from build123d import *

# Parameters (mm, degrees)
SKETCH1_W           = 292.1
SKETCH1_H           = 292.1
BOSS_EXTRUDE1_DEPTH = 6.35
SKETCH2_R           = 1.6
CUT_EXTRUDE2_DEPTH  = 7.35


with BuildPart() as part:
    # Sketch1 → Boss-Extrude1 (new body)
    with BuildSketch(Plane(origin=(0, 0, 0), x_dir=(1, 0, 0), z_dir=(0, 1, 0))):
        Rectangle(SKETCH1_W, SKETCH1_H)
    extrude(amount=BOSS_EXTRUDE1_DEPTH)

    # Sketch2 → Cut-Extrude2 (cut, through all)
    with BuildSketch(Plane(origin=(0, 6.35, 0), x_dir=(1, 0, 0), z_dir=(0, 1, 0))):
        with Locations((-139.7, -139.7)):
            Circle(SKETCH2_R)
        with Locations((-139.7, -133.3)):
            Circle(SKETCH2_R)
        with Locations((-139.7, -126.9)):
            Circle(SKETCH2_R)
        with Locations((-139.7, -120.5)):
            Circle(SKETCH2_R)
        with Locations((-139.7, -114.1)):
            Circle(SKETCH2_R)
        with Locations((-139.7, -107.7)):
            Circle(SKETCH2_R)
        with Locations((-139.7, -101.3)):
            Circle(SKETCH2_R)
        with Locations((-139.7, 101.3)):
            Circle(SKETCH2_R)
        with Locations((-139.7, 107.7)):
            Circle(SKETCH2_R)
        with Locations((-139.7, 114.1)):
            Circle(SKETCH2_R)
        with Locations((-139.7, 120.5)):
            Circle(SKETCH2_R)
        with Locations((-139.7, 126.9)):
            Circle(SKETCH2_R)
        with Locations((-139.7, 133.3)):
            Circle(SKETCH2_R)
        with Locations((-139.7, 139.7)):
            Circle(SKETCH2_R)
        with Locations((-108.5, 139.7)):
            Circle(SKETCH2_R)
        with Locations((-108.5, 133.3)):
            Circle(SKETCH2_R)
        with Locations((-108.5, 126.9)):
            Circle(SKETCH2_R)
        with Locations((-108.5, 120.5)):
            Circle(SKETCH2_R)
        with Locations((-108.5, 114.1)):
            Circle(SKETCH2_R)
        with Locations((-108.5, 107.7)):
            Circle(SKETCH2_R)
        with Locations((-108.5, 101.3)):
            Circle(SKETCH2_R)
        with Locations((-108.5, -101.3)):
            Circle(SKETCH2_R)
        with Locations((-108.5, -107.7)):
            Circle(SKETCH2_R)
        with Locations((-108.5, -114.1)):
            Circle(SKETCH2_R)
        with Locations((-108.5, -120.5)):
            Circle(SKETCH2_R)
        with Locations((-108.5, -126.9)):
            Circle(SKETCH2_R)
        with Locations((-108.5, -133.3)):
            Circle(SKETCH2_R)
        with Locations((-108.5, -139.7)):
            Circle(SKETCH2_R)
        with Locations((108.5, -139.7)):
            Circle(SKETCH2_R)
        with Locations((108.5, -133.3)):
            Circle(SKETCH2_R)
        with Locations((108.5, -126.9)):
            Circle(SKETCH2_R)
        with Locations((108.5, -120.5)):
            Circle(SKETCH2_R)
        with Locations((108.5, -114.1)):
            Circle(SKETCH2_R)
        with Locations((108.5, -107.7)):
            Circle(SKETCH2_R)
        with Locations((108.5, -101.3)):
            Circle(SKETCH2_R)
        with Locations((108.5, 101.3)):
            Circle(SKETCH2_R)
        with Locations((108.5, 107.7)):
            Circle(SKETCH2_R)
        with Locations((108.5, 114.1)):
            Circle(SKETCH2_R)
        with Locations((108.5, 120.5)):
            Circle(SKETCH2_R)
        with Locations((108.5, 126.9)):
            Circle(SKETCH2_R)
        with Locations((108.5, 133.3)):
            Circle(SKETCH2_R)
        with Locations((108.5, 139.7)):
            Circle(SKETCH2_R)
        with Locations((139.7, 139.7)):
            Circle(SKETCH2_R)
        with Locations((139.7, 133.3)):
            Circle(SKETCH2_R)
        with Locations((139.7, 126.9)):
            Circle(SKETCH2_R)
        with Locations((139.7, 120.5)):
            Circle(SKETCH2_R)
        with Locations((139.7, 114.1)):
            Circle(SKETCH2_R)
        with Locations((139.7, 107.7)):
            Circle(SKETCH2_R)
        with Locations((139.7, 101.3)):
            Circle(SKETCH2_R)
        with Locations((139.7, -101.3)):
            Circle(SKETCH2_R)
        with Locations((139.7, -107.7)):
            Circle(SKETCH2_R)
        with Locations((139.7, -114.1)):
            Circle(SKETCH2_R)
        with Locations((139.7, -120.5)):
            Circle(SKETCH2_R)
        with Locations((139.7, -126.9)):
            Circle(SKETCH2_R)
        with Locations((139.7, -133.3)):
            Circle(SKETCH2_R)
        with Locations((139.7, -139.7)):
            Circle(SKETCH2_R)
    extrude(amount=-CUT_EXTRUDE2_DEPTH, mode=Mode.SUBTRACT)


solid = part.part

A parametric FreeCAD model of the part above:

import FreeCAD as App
import Part
import Sketcher
Q = App.Units.Quantity


def add_polygon(sketch, points):
    """Adds a closed chain of lines whose ends are joined by coincident constraints."""
    first, n = sketch.GeometryCount, len(points)
    for a, b in zip(points, points[1:] + points[:1]):
        sketch.addGeometry(Part.LineSegment(App.Vector(*a, 0), App.Vector(*b, 0)), False)
    for i in range(n):
        sketch.addConstraint(Sketcher.Constraint("Coincident", first + i, 2, first + (i + 1) % n, 1))

doc = App.newDocument("Part")
params = doc.addObject("Spreadsheet::Sheet", "Params")
for row, (alias, value) in enumerate([
    ("sketch1_width", "11.5 in"),
    ("pad1_length", "0.25 in"),
], start=1):
    params.set(f"A{row}", alias)
    params.set(f"B{row}", "=" + value)
    params.setAlias(f"B{row}", alias)

body = doc.addObject("PartDesign::Body", "Body")

sketch1 = body.newObject("Sketcher::SketchObject", "Sketch")
sketch1.AttachmentSupport = (doc.getObject("XZ_Plane"), [""])
sketch1.MapMode = "FlatFace"
add_polygon(sketch1, [(-146, -146), (-146, 146), (146, 146), (146, -146)])
sketch1.addConstraint(Sketcher.Constraint("Vertical", 0))
sketch1.addConstraint(Sketcher.Constraint("Horizontal", 1))
sketch1.addConstraint(Sketcher.Constraint("Vertical", 2))
sketch1.addConstraint(Sketcher.Constraint("Horizontal", 3))
sketch1.addConstraint(Sketcher.Constraint("Symmetric", 0, 2, 2, 2, -1, 1))
sketch1.addConstraint(Sketcher.Constraint("Equal", 3, 0))
sketch1.addConstraint(Sketcher.Constraint("DistanceX", 1, 1, 1, 2, Q("11.5 in")))
sketch1.setExpression("Constraints[10]", "Params.sketch1_width")
pad1 = body.newObject("PartDesign::Pad", "Pad")
pad1.Profile = sketch1
pad1.setExpression("Length", "Params.pad1_length")
pad1.Reversed = True

sketch2 = body.newObject("Sketcher::SketchObject", "Sketch001")
sketch2.AttachmentSupport = (doc.getObject("XZ_Plane"), [""])
sketch2.MapMode = "FlatFace"
sketch2.AttachmentOffset = App.Placement(App.Vector(0, 0, -0.25 * 25.4), App.Rotation())
sketch2.addGeometry(Part.Circle(App.Vector(-139.7, 139.7, 0), App.Vector(0, 0, 1), 1.6), False)
sketch2.addGeometry(Part.Circle(App.Vector(-139.7, 133.3, 0), App.Vector(0, 0, 1), 1.6), False)
sketch2.addGeometry(Part.Circle(App.Vector(-139.7, 126.9, 0), App.Vector(0, 0, 1), 1.6), False)
sketch2.addGeometry(Part.Circle(App.Vector(-139.7, 120.5, 0), App.Vector(0, 0, 1), 1.6), False)
sketch2.addGeometry(Part.Circle(App.Vector(-139.7, 114.1, 0), App.Vector(0, 0, 1), 1.6), False)
sketch2.addGeometry(Part.Circle(App.Vector(-139.7, 107.7, 0), App.Vector(0, 0, 1), 1.6), False)
sketch2.addGeometry(Part.Circle(App.Vector(-139.7, 101.3, 0), App.Vector(0, 0, 1), 1.6), False)
sketch2.addGeometry(Part.Circle(App.Vector(-139.7, -101.3, 0), App.Vector(0, 0, 1), 1.6), False)
sketch2.addGeometry(Part.Circle(App.Vector(-139.7, -107.7, 0), App.Vector(0, 0, 1), 1.6), False)
sketch2.addGeometry(Part.Circle(App.Vector(-139.7, -114.1, 0), App.Vector(0, 0, 1), 1.6), False)
sketch2.addGeometry(Part.Circle(App.Vector(-139.7, -120.5, 0), App.Vector(0, 0, 1), 1.6), False)
sketch2.addGeometry(Part.Circle(App.Vector(-139.7, -126.9, 0), App.Vector(0, 0, 1), 1.6), False)
sketch2.addGeometry(Part.Circle(App.Vector(-139.7, -133.3, 0), App.Vector(0, 0, 1), 1.6), False)
sketch2.addGeometry(Part.Circle(App.Vector(-139.7, -139.7, 0), App.Vector(0, 0, 1), 1.6), False)
sketch2.addGeometry(Part.Circle(App.Vector(-108.5, -139.7, 0), App.Vector(0, 0, 1), 1.6), False)
sketch2.addGeometry(Part.Circle(App.Vector(-108.5, -133.3, 0), App.Vector(0, 0, 1), 1.6), False)
sketch2.addGeometry(Part.Circle(App.Vector(-108.5, -126.9, 0), App.Vector(0, 0, 1), 1.6), False)
sketch2.addGeometry(Part.Circle(App.Vector(-108.5, -120.5, 0), App.Vector(0, 0, 1), 1.6), False)
sketch2.addGeometry(Part.Circle(App.Vector(-108.5, -114.1, 0), App.Vector(0, 0, 1), 1.6), False)
sketch2.addGeometry(Part.Circle(App.Vector(-108.5, -107.7, 0), App.Vector(0, 0, 1), 1.6), False)
sketch2.addGeometry(Part.Circle(App.Vector(-108.5, -101.3, 0), App.Vector(0, 0, 1), 1.6), False)
sketch2.addGeometry(Part.Circle(App.Vector(-108.5, 101.3, 0), App.Vector(0, 0, 1), 1.6), False)
sketch2.addGeometry(Part.Circle(App.Vector(-108.5, 107.7, 0), App.Vector(0, 0, 1), 1.6), False)
sketch2.addGeometry(Part.Circle(App.Vector(-108.5, 114.1, 0), App.Vector(0, 0, 1), 1.6), False)
sketch2.addGeometry(Part.Circle(App.Vector(-108.5, 120.5, 0), App.Vector(0, 0, 1), 1.6), False)
sketch2.addGeometry(Part.Circle(App.Vector(-108.5, 126.9, 0), App.Vector(0, 0, 1), 1.6), False)
sketch2.addGeometry(Part.Circle(App.Vector(-108.5, 133.3, 0), App.Vector(0, 0, 1), 1.6), False)
sketch2.addGeometry(Part.Circle(App.Vector(-108.5, 139.7, 0), App.Vector(0, 0, 1), 1.6), False)
sketch2.addGeometry(Part.Circle(App.Vector(108.5, 139.7, 0), App.Vector(0, 0, 1), 1.6), False)
sketch2.addGeometry(Part.Circle(App.Vector(108.5, 133.3, 0), App.Vector(0, 0, 1), 1.6), False)
sketch2.addGeometry(Part.Circle(App.Vector(108.5, 126.9, 0), App.Vector(0, 0, 1), 1.6), False)
sketch2.addGeometry(Part.Circle(App.Vector(108.5, 120.5, 0), App.Vector(0, 0, 1), 1.6), False)
sketch2.addGeometry(Part.Circle(App.Vector(108.5, 114.1, 0), App.Vector(0, 0, 1), 1.6), False)
sketch2.addGeometry(Part.Circle(App.Vector(108.5, 107.7, 0), App.Vector(0, 0, 1), 1.6), False)
sketch2.addGeometry(Part.Circle(App.Vector(108.5, 101.3, 0), App.Vector(0, 0, 1), 1.6), False)
sketch2.addGeometry(Part.Circle(App.Vector(108.5, -101.3, 0), App.Vector(0, 0, 1), 1.6), False)
sketch2.addGeometry(Part.Circle(App.Vector(108.5, -107.7, 0), App.Vector(0, 0, 1), 1.6), False)
sketch2.addGeometry(Part.Circle(App.Vector(108.5, -114.1, 0), App.Vector(0, 0, 1), 1.6), False)
sketch2.addGeometry(Part.Circle(App.Vector(108.5, -120.5, 0), App.Vector(0, 0, 1), 1.6), False)
sketch2.addGeometry(Part.Circle(App.Vector(108.5, -126.9, 0), App.Vector(0, 0, 1), 1.6), False)
sketch2.addGeometry(Part.Circle(App.Vector(108.5, -133.3, 0), App.Vector(0, 0, 1), 1.6), False)
sketch2.addGeometry(Part.Circle(App.Vector(108.5, -139.7, 0), App.Vector(0, 0, 1), 1.6), False)
sketch2.addGeometry(Part.Circle(App.Vector(139.7, -139.7, 0), App.Vector(0, 0, 1), 1.6), False)
sketch2.addGeometry(Part.Circle(App.Vector(139.7, -133.3, 0), App.Vector(0, 0, 1), 1.6), False)
sketch2.addGeometry(Part.Circle(App.Vector(139.7, -126.9, 0), App.Vector(0, 0, 1), 1.6), False)
sketch2.addGeometry(Part.Circle(App.Vector(139.7, -120.5, 0), App.Vector(0, 0, 1), 1.6), False)
sketch2.addGeometry(Part.Circle(App.Vector(139.7, -114.1, 0), App.Vector(0, 0, 1), 1.6), False)
sketch2.addGeometry(Part.Circle(App.Vector(139.7, -107.7, 0), App.Vector(0, 0, 1), 1.6), False)
sketch2.addGeometry(Part.Circle(App.Vector(139.7, -101.3, 0), App.Vector(0, 0, 1), 1.6), False)
sketch2.addGeometry(Part.Circle(App.Vector(139.7, 101.3, 0), App.Vector(0, 0, 1), 1.6), False)
sketch2.addGeometry(Part.Circle(App.Vector(139.7, 107.7, 0), App.Vector(0, 0, 1), 1.6), False)
sketch2.addGeometry(Part.Circle(App.Vector(139.7, 114.1, 0), App.Vector(0, 0, 1), 1.6), False)
sketch2.addGeometry(Part.Circle(App.Vector(139.7, 120.5, 0), App.Vector(0, 0, 1), 1.6), False)
sketch2.addGeometry(Part.Circle(App.Vector(139.7, 126.9, 0), App.Vector(0, 0, 1), 1.6), False)
sketch2.addGeometry(Part.Circle(App.Vector(139.7, 133.3, 0), App.Vector(0, 0, 1), 1.6), False)
sketch2.addGeometry(Part.Circle(App.Vector(139.7, 139.7, 0), App.Vector(0, 0, 1), 1.6), False)
sketch2.addConstraint(Sketcher.Constraint("Equal", 0, 1))
sketch2.addConstraint(Sketcher.Constraint("Equal", 1, 2))
sketch2.addConstraint(Sketcher.Constraint("Equal", 2, 3))
sketch2.addConstraint(Sketcher.Constraint("Equal", 3, 4))
sketch2.addConstraint(Sketcher.Constraint("Equal", 4, 5))
sketch2.addConstraint(Sketcher.Constraint("Equal", 5, 6))
sketch2.addConstraint(Sketcher.Constraint("Equal", 6, 7))
sketch2.addConstraint(Sketcher.Constraint("Equal", 7, 8))
sketch2.addConstraint(Sketcher.Constraint("Equal", 8, 9))
sketch2.addConstraint(Sketcher.Constraint("Equal", 9, 10))
sketch2.addConstraint(Sketcher.Constraint("Equal", 10, 11))
sketch2.addConstraint(Sketcher.Constraint("Equal", 11, 12))
sketch2.addConstraint(Sketcher.Constraint("Equal", 12, 13))
sketch2.addConstraint(Sketcher.Constraint("Equal", 13, 14))
sketch2.addConstraint(Sketcher.Constraint("Equal", 14, 15))
sketch2.addConstraint(Sketcher.Constraint("Equal", 15, 16))
sketch2.addConstraint(Sketcher.Constraint("Equal", 16, 17))
sketch2.addConstraint(Sketcher.Constraint("Equal", 17, 18))
sketch2.addConstraint(Sketcher.Constraint("Equal", 18, 19))
sketch2.addConstraint(Sketcher.Constraint("Equal", 19, 20))
sketch2.addConstraint(Sketcher.Constraint("Equal", 20, 21))
sketch2.addConstraint(Sketcher.Constraint("Equal", 21, 22))
sketch2.addConstraint(Sketcher.Constraint("Equal", 22, 23))
sketch2.addConstraint(Sketcher.Constraint("Equal", 23, 24))
sketch2.addConstraint(Sketcher.Constraint("Equal", 24, 25))
sketch2.addConstraint(Sketcher.Constraint("Equal", 25, 26))
sketch2.addConstraint(Sketcher.Constraint("Equal", 26, 27))
sketch2.addConstraint(Sketcher.Constraint("Equal", 27, 28))
sketch2.addConstraint(Sketcher.Constraint("Equal", 28, 29))
sketch2.addConstraint(Sketcher.Constraint("Equal", 29, 30))
sketch2.addConstraint(Sketcher.Constraint("Equal", 30, 31))
sketch2.addConstraint(Sketcher.Constraint("Equal", 31, 32))
sketch2.addConstraint(Sketcher.Constraint("Equal", 32, 33))
sketch2.addConstraint(Sketcher.Constraint("Equal", 33, 34))
sketch2.addConstraint(Sketcher.Constraint("Equal", 34, 35))
sketch2.addConstraint(Sketcher.Constraint("Equal", 35, 36))
sketch2.addConstraint(Sketcher.Constraint("Equal", 36, 37))
sketch2.addConstraint(Sketcher.Constraint("Equal", 37, 38))
sketch2.addConstraint(Sketcher.Constraint("Equal", 38, 39))
sketch2.addConstraint(Sketcher.Constraint("Equal", 39, 40))
sketch2.addConstraint(Sketcher.Constraint("Equal", 40, 41))
sketch2.addConstraint(Sketcher.Constraint("Equal", 41, 42))
sketch2.addConstraint(Sketcher.Constraint("Equal", 42, 43))
sketch2.addConstraint(Sketcher.Constraint("Equal", 43, 44))
sketch2.addConstraint(Sketcher.Constraint("Equal", 44, 45))
sketch2.addConstraint(Sketcher.Constraint("Equal", 45, 46))
sketch2.addConstraint(Sketcher.Constraint("Equal", 46, 47))
sketch2.addConstraint(Sketcher.Constraint("Equal", 47, 48))
sketch2.addConstraint(Sketcher.Constraint("Equal", 48, 49))
sketch2.addConstraint(Sketcher.Constraint("Equal", 49, 50))
sketch2.addConstraint(Sketcher.Constraint("Equal", 50, 51))
sketch2.addConstraint(Sketcher.Constraint("Equal", 51, 52))
sketch2.addConstraint(Sketcher.Constraint("Equal", 52, 53))
sketch2.addConstraint(Sketcher.Constraint("Equal", 53, 54))
sketch2.addConstraint(Sketcher.Constraint("Equal", 54, 55))
sketch2.addConstraint(Sketcher.Constraint("Symmetric", 14, 3, 28, 3, -1, 1))
sketch2.addConstraint(Sketcher.Constraint("Symmetric", 15, 3, 29, 3, -1, 1))
sketch2.addConstraint(Sketcher.Constraint("Symmetric", 16, 3, 30, 3, -1, 1))
sketch2.addConstraint(Sketcher.Constraint("Symmetric", 17, 3, 31, 3, -1, 1))
sketch2.addConstraint(Sketcher.Constraint("Symmetric", 18, 3, 32, 3, -1, 1))
sketch2.addConstraint(Sketcher.Constraint("Symmetric", 19, 3, 33, 3, -1, 1))
sketch2.addConstraint(Sketcher.Constraint("Symmetric", 20, 3, 34, 3, -1, 1))
sketch2.addConstraint(Sketcher.Constraint("Symmetric", 21, 3, 35, 3, -1, 1))
sketch2.addConstraint(Sketcher.Constraint("Symmetric", 22, 3, 36, 3, -1, 1))
sketch2.addConstraint(Sketcher.Constraint("Symmetric", 23, 3, 37, 3, -1, 1))
sketch2.addConstraint(Sketcher.Constraint("Symmetric", 24, 3, 38, 3, -1, 1))
sketch2.addConstraint(Sketcher.Constraint("Symmetric", 25, 3, 39, 3, -1, 1))
sketch2.addConstraint(Sketcher.Constraint("Symmetric", 26, 3, 40, 3, -1, 1))
sketch2.addConstraint(Sketcher.Constraint("Symmetric", 27, 3, 41, 3, -1, 1))
sketch2.addConstraint(Sketcher.Constraint("Symmetric", 0, 3, 42, 3, -1, 1))
sketch2.addConstraint(Sketcher.Constraint("Symmetric", 1, 3, 43, 3, -1, 1))
sketch2.addConstraint(Sketcher.Constraint("Symmetric", 2, 3, 44, 3, -1, 1))
sketch2.addConstraint(Sketcher.Constraint("Symmetric", 3, 3, 45, 3, -1, 1))
sketch2.addConstraint(Sketcher.Constraint("Symmetric", 4, 3, 46, 3, -1, 1))
sketch2.addConstraint(Sketcher.Constraint("Symmetric", 5, 3, 47, 3, -1, 1))
sketch2.addConstraint(Sketcher.Constraint("Symmetric", 6, 3, 48, 3, -1, 1))
sketch2.addConstraint(Sketcher.Constraint("Symmetric", 7, 3, 49, 3, -1, 1))
sketch2.addConstraint(Sketcher.Constraint("Symmetric", 8, 3, 50, 3, -1, 1))
sketch2.addConstraint(Sketcher.Constraint("Symmetric", 9, 3, 51, 3, -1, 1))
sketch2.addConstraint(Sketcher.Constraint("Symmetric", 10, 3, 52, 3, -1, 1))
sketch2.addConstraint(Sketcher.Constraint("Symmetric", 11, 3, 53, 3, -1, 1))
sketch2.addConstraint(Sketcher.Constraint("Symmetric", 12, 3, 54, 3, -1, 1))
sketch2.addConstraint(Sketcher.Constraint("Symmetric", 13, 3, 55, 3, -1, 1))
sketch2.addConstraint(Sketcher.Constraint("Symmetric", 27, 3, 28, 3, -2))
sketch2.addConstraint(Sketcher.Constraint("Symmetric", 26, 3, 29, 3, -2))
sketch2.addConstraint(Sketcher.Constraint("Symmetric", 25, 3, 30, 3, -2))
sketch2.addConstraint(Sketcher.Constraint("Symmetric", 24, 3, 31, 3, -2))
sketch2.addConstraint(Sketcher.Constraint("Symmetric", 23, 3, 32, 3, -2))
sketch2.addConstraint(Sketcher.Constraint("Symmetric", 22, 3, 33, 3, -2))
sketch2.addConstraint(Sketcher.Constraint("Symmetric", 21, 3, 34, 3, -2))
sketch2.addConstraint(Sketcher.Constraint("Symmetric", 13, 3, 42, 3, -2))
sketch2.addConstraint(Sketcher.Constraint("Symmetric", 12, 3, 43, 3, -2))
sketch2.addConstraint(Sketcher.Constraint("Symmetric", 11, 3, 44, 3, -2))
sketch2.addConstraint(Sketcher.Constraint("Symmetric", 10, 3, 45, 3, -2))
sketch2.addConstraint(Sketcher.Constraint("Symmetric", 9, 3, 46, 3, -2))
sketch2.addConstraint(Sketcher.Constraint("Symmetric", 8, 3, 47, 3, -2))
sketch2.addConstraint(Sketcher.Constraint("Symmetric", 7, 3, 48, 3, -2))
sketch2.addConstraint(Sketcher.Constraint("Horizontal", 13, 3, 14, 3))
sketch2.addConstraint(Sketcher.Constraint("Horizontal", 12, 3, 15, 3))
sketch2.addConstraint(Sketcher.Constraint("Horizontal", 11, 3, 16, 3))
sketch2.addConstraint(Sketcher.Constraint("Horizontal", 10, 3, 17, 3))
sketch2.addConstraint(Sketcher.Constraint("Horizontal", 9, 3, 18, 3))
sketch2.addConstraint(Sketcher.Constraint("Horizontal", 8, 3, 19, 3))
sketch2.addConstraint(Sketcher.Constraint("Horizontal", 7, 3, 20, 3))
sketch2.addConstraint(Sketcher.Constraint("Vertical", 0, 3, 1, 3))
sketch2.addConstraint(Sketcher.Constraint("Vertical", 1, 3, 2, 3))
sketch2.addConstraint(Sketcher.Constraint("Vertical", 2, 3, 3, 3))
sketch2.addConstraint(Sketcher.Constraint("Vertical", 3, 3, 4, 3))
sketch2.addConstraint(Sketcher.Constraint("Vertical", 4, 3, 5, 3))
sketch2.addConstraint(Sketcher.Constraint("Vertical", 5, 3, 6, 3))
sketch2.addConstraint(Sketcher.Constraint("Vertical", 14, 3, 15, 3))
sketch2.addConstraint(Sketcher.Constraint("Vertical", 15, 3, 16, 3))
sketch2.addConstraint(Sketcher.Constraint("Vertical", 16, 3, 17, 3))
sketch2.addConstraint(Sketcher.Constraint("Vertical", 17, 3, 18, 3))
sketch2.addConstraint(Sketcher.Constraint("Vertical", 18, 3, 19, 3))
sketch2.addConstraint(Sketcher.Constraint("Vertical", 19, 3, 20, 3))
sketch2.addConstraint(Sketcher.Constraint("DistanceX", 0, 3, -1, 1, Q("5.5 in")))
sketch2.addConstraint(Sketcher.Constraint("DistanceY", -1, 1, 0, 3, Q("5.5 in")))
sketch2.addConstraint(Sketcher.Constraint("Diameter", 0, 3.2))
sketch2.addConstraint(Sketcher.Constraint("DistanceY", -1, 1, 1, 3, 133.3))
sketch2.addConstraint(Sketcher.Constraint("DistanceY", -1, 1, 2, 3, 126.9))
sketch2.addConstraint(Sketcher.Constraint("DistanceY", -1, 1, 3, 3, 120.5))
sketch2.addConstraint(Sketcher.Constraint("DistanceY", -1, 1, 4, 3, 114.1))
sketch2.addConstraint(Sketcher.Constraint("DistanceY", -1, 1, 5, 3, 107.7))
sketch2.addConstraint(Sketcher.Constraint("DistanceY", -1, 1, 6, 3, 101.3))
sketch2.addConstraint(Sketcher.Constraint("DistanceX", 14, 3, -1, 1, 108.5))
pocket1 = body.newObject("PartDesign::Pocket", "Pocket")
pocket1.Profile = sketch2
pocket1.Type = "ThroughAll"
pocket1.Reversed = True

doc.recompute()
